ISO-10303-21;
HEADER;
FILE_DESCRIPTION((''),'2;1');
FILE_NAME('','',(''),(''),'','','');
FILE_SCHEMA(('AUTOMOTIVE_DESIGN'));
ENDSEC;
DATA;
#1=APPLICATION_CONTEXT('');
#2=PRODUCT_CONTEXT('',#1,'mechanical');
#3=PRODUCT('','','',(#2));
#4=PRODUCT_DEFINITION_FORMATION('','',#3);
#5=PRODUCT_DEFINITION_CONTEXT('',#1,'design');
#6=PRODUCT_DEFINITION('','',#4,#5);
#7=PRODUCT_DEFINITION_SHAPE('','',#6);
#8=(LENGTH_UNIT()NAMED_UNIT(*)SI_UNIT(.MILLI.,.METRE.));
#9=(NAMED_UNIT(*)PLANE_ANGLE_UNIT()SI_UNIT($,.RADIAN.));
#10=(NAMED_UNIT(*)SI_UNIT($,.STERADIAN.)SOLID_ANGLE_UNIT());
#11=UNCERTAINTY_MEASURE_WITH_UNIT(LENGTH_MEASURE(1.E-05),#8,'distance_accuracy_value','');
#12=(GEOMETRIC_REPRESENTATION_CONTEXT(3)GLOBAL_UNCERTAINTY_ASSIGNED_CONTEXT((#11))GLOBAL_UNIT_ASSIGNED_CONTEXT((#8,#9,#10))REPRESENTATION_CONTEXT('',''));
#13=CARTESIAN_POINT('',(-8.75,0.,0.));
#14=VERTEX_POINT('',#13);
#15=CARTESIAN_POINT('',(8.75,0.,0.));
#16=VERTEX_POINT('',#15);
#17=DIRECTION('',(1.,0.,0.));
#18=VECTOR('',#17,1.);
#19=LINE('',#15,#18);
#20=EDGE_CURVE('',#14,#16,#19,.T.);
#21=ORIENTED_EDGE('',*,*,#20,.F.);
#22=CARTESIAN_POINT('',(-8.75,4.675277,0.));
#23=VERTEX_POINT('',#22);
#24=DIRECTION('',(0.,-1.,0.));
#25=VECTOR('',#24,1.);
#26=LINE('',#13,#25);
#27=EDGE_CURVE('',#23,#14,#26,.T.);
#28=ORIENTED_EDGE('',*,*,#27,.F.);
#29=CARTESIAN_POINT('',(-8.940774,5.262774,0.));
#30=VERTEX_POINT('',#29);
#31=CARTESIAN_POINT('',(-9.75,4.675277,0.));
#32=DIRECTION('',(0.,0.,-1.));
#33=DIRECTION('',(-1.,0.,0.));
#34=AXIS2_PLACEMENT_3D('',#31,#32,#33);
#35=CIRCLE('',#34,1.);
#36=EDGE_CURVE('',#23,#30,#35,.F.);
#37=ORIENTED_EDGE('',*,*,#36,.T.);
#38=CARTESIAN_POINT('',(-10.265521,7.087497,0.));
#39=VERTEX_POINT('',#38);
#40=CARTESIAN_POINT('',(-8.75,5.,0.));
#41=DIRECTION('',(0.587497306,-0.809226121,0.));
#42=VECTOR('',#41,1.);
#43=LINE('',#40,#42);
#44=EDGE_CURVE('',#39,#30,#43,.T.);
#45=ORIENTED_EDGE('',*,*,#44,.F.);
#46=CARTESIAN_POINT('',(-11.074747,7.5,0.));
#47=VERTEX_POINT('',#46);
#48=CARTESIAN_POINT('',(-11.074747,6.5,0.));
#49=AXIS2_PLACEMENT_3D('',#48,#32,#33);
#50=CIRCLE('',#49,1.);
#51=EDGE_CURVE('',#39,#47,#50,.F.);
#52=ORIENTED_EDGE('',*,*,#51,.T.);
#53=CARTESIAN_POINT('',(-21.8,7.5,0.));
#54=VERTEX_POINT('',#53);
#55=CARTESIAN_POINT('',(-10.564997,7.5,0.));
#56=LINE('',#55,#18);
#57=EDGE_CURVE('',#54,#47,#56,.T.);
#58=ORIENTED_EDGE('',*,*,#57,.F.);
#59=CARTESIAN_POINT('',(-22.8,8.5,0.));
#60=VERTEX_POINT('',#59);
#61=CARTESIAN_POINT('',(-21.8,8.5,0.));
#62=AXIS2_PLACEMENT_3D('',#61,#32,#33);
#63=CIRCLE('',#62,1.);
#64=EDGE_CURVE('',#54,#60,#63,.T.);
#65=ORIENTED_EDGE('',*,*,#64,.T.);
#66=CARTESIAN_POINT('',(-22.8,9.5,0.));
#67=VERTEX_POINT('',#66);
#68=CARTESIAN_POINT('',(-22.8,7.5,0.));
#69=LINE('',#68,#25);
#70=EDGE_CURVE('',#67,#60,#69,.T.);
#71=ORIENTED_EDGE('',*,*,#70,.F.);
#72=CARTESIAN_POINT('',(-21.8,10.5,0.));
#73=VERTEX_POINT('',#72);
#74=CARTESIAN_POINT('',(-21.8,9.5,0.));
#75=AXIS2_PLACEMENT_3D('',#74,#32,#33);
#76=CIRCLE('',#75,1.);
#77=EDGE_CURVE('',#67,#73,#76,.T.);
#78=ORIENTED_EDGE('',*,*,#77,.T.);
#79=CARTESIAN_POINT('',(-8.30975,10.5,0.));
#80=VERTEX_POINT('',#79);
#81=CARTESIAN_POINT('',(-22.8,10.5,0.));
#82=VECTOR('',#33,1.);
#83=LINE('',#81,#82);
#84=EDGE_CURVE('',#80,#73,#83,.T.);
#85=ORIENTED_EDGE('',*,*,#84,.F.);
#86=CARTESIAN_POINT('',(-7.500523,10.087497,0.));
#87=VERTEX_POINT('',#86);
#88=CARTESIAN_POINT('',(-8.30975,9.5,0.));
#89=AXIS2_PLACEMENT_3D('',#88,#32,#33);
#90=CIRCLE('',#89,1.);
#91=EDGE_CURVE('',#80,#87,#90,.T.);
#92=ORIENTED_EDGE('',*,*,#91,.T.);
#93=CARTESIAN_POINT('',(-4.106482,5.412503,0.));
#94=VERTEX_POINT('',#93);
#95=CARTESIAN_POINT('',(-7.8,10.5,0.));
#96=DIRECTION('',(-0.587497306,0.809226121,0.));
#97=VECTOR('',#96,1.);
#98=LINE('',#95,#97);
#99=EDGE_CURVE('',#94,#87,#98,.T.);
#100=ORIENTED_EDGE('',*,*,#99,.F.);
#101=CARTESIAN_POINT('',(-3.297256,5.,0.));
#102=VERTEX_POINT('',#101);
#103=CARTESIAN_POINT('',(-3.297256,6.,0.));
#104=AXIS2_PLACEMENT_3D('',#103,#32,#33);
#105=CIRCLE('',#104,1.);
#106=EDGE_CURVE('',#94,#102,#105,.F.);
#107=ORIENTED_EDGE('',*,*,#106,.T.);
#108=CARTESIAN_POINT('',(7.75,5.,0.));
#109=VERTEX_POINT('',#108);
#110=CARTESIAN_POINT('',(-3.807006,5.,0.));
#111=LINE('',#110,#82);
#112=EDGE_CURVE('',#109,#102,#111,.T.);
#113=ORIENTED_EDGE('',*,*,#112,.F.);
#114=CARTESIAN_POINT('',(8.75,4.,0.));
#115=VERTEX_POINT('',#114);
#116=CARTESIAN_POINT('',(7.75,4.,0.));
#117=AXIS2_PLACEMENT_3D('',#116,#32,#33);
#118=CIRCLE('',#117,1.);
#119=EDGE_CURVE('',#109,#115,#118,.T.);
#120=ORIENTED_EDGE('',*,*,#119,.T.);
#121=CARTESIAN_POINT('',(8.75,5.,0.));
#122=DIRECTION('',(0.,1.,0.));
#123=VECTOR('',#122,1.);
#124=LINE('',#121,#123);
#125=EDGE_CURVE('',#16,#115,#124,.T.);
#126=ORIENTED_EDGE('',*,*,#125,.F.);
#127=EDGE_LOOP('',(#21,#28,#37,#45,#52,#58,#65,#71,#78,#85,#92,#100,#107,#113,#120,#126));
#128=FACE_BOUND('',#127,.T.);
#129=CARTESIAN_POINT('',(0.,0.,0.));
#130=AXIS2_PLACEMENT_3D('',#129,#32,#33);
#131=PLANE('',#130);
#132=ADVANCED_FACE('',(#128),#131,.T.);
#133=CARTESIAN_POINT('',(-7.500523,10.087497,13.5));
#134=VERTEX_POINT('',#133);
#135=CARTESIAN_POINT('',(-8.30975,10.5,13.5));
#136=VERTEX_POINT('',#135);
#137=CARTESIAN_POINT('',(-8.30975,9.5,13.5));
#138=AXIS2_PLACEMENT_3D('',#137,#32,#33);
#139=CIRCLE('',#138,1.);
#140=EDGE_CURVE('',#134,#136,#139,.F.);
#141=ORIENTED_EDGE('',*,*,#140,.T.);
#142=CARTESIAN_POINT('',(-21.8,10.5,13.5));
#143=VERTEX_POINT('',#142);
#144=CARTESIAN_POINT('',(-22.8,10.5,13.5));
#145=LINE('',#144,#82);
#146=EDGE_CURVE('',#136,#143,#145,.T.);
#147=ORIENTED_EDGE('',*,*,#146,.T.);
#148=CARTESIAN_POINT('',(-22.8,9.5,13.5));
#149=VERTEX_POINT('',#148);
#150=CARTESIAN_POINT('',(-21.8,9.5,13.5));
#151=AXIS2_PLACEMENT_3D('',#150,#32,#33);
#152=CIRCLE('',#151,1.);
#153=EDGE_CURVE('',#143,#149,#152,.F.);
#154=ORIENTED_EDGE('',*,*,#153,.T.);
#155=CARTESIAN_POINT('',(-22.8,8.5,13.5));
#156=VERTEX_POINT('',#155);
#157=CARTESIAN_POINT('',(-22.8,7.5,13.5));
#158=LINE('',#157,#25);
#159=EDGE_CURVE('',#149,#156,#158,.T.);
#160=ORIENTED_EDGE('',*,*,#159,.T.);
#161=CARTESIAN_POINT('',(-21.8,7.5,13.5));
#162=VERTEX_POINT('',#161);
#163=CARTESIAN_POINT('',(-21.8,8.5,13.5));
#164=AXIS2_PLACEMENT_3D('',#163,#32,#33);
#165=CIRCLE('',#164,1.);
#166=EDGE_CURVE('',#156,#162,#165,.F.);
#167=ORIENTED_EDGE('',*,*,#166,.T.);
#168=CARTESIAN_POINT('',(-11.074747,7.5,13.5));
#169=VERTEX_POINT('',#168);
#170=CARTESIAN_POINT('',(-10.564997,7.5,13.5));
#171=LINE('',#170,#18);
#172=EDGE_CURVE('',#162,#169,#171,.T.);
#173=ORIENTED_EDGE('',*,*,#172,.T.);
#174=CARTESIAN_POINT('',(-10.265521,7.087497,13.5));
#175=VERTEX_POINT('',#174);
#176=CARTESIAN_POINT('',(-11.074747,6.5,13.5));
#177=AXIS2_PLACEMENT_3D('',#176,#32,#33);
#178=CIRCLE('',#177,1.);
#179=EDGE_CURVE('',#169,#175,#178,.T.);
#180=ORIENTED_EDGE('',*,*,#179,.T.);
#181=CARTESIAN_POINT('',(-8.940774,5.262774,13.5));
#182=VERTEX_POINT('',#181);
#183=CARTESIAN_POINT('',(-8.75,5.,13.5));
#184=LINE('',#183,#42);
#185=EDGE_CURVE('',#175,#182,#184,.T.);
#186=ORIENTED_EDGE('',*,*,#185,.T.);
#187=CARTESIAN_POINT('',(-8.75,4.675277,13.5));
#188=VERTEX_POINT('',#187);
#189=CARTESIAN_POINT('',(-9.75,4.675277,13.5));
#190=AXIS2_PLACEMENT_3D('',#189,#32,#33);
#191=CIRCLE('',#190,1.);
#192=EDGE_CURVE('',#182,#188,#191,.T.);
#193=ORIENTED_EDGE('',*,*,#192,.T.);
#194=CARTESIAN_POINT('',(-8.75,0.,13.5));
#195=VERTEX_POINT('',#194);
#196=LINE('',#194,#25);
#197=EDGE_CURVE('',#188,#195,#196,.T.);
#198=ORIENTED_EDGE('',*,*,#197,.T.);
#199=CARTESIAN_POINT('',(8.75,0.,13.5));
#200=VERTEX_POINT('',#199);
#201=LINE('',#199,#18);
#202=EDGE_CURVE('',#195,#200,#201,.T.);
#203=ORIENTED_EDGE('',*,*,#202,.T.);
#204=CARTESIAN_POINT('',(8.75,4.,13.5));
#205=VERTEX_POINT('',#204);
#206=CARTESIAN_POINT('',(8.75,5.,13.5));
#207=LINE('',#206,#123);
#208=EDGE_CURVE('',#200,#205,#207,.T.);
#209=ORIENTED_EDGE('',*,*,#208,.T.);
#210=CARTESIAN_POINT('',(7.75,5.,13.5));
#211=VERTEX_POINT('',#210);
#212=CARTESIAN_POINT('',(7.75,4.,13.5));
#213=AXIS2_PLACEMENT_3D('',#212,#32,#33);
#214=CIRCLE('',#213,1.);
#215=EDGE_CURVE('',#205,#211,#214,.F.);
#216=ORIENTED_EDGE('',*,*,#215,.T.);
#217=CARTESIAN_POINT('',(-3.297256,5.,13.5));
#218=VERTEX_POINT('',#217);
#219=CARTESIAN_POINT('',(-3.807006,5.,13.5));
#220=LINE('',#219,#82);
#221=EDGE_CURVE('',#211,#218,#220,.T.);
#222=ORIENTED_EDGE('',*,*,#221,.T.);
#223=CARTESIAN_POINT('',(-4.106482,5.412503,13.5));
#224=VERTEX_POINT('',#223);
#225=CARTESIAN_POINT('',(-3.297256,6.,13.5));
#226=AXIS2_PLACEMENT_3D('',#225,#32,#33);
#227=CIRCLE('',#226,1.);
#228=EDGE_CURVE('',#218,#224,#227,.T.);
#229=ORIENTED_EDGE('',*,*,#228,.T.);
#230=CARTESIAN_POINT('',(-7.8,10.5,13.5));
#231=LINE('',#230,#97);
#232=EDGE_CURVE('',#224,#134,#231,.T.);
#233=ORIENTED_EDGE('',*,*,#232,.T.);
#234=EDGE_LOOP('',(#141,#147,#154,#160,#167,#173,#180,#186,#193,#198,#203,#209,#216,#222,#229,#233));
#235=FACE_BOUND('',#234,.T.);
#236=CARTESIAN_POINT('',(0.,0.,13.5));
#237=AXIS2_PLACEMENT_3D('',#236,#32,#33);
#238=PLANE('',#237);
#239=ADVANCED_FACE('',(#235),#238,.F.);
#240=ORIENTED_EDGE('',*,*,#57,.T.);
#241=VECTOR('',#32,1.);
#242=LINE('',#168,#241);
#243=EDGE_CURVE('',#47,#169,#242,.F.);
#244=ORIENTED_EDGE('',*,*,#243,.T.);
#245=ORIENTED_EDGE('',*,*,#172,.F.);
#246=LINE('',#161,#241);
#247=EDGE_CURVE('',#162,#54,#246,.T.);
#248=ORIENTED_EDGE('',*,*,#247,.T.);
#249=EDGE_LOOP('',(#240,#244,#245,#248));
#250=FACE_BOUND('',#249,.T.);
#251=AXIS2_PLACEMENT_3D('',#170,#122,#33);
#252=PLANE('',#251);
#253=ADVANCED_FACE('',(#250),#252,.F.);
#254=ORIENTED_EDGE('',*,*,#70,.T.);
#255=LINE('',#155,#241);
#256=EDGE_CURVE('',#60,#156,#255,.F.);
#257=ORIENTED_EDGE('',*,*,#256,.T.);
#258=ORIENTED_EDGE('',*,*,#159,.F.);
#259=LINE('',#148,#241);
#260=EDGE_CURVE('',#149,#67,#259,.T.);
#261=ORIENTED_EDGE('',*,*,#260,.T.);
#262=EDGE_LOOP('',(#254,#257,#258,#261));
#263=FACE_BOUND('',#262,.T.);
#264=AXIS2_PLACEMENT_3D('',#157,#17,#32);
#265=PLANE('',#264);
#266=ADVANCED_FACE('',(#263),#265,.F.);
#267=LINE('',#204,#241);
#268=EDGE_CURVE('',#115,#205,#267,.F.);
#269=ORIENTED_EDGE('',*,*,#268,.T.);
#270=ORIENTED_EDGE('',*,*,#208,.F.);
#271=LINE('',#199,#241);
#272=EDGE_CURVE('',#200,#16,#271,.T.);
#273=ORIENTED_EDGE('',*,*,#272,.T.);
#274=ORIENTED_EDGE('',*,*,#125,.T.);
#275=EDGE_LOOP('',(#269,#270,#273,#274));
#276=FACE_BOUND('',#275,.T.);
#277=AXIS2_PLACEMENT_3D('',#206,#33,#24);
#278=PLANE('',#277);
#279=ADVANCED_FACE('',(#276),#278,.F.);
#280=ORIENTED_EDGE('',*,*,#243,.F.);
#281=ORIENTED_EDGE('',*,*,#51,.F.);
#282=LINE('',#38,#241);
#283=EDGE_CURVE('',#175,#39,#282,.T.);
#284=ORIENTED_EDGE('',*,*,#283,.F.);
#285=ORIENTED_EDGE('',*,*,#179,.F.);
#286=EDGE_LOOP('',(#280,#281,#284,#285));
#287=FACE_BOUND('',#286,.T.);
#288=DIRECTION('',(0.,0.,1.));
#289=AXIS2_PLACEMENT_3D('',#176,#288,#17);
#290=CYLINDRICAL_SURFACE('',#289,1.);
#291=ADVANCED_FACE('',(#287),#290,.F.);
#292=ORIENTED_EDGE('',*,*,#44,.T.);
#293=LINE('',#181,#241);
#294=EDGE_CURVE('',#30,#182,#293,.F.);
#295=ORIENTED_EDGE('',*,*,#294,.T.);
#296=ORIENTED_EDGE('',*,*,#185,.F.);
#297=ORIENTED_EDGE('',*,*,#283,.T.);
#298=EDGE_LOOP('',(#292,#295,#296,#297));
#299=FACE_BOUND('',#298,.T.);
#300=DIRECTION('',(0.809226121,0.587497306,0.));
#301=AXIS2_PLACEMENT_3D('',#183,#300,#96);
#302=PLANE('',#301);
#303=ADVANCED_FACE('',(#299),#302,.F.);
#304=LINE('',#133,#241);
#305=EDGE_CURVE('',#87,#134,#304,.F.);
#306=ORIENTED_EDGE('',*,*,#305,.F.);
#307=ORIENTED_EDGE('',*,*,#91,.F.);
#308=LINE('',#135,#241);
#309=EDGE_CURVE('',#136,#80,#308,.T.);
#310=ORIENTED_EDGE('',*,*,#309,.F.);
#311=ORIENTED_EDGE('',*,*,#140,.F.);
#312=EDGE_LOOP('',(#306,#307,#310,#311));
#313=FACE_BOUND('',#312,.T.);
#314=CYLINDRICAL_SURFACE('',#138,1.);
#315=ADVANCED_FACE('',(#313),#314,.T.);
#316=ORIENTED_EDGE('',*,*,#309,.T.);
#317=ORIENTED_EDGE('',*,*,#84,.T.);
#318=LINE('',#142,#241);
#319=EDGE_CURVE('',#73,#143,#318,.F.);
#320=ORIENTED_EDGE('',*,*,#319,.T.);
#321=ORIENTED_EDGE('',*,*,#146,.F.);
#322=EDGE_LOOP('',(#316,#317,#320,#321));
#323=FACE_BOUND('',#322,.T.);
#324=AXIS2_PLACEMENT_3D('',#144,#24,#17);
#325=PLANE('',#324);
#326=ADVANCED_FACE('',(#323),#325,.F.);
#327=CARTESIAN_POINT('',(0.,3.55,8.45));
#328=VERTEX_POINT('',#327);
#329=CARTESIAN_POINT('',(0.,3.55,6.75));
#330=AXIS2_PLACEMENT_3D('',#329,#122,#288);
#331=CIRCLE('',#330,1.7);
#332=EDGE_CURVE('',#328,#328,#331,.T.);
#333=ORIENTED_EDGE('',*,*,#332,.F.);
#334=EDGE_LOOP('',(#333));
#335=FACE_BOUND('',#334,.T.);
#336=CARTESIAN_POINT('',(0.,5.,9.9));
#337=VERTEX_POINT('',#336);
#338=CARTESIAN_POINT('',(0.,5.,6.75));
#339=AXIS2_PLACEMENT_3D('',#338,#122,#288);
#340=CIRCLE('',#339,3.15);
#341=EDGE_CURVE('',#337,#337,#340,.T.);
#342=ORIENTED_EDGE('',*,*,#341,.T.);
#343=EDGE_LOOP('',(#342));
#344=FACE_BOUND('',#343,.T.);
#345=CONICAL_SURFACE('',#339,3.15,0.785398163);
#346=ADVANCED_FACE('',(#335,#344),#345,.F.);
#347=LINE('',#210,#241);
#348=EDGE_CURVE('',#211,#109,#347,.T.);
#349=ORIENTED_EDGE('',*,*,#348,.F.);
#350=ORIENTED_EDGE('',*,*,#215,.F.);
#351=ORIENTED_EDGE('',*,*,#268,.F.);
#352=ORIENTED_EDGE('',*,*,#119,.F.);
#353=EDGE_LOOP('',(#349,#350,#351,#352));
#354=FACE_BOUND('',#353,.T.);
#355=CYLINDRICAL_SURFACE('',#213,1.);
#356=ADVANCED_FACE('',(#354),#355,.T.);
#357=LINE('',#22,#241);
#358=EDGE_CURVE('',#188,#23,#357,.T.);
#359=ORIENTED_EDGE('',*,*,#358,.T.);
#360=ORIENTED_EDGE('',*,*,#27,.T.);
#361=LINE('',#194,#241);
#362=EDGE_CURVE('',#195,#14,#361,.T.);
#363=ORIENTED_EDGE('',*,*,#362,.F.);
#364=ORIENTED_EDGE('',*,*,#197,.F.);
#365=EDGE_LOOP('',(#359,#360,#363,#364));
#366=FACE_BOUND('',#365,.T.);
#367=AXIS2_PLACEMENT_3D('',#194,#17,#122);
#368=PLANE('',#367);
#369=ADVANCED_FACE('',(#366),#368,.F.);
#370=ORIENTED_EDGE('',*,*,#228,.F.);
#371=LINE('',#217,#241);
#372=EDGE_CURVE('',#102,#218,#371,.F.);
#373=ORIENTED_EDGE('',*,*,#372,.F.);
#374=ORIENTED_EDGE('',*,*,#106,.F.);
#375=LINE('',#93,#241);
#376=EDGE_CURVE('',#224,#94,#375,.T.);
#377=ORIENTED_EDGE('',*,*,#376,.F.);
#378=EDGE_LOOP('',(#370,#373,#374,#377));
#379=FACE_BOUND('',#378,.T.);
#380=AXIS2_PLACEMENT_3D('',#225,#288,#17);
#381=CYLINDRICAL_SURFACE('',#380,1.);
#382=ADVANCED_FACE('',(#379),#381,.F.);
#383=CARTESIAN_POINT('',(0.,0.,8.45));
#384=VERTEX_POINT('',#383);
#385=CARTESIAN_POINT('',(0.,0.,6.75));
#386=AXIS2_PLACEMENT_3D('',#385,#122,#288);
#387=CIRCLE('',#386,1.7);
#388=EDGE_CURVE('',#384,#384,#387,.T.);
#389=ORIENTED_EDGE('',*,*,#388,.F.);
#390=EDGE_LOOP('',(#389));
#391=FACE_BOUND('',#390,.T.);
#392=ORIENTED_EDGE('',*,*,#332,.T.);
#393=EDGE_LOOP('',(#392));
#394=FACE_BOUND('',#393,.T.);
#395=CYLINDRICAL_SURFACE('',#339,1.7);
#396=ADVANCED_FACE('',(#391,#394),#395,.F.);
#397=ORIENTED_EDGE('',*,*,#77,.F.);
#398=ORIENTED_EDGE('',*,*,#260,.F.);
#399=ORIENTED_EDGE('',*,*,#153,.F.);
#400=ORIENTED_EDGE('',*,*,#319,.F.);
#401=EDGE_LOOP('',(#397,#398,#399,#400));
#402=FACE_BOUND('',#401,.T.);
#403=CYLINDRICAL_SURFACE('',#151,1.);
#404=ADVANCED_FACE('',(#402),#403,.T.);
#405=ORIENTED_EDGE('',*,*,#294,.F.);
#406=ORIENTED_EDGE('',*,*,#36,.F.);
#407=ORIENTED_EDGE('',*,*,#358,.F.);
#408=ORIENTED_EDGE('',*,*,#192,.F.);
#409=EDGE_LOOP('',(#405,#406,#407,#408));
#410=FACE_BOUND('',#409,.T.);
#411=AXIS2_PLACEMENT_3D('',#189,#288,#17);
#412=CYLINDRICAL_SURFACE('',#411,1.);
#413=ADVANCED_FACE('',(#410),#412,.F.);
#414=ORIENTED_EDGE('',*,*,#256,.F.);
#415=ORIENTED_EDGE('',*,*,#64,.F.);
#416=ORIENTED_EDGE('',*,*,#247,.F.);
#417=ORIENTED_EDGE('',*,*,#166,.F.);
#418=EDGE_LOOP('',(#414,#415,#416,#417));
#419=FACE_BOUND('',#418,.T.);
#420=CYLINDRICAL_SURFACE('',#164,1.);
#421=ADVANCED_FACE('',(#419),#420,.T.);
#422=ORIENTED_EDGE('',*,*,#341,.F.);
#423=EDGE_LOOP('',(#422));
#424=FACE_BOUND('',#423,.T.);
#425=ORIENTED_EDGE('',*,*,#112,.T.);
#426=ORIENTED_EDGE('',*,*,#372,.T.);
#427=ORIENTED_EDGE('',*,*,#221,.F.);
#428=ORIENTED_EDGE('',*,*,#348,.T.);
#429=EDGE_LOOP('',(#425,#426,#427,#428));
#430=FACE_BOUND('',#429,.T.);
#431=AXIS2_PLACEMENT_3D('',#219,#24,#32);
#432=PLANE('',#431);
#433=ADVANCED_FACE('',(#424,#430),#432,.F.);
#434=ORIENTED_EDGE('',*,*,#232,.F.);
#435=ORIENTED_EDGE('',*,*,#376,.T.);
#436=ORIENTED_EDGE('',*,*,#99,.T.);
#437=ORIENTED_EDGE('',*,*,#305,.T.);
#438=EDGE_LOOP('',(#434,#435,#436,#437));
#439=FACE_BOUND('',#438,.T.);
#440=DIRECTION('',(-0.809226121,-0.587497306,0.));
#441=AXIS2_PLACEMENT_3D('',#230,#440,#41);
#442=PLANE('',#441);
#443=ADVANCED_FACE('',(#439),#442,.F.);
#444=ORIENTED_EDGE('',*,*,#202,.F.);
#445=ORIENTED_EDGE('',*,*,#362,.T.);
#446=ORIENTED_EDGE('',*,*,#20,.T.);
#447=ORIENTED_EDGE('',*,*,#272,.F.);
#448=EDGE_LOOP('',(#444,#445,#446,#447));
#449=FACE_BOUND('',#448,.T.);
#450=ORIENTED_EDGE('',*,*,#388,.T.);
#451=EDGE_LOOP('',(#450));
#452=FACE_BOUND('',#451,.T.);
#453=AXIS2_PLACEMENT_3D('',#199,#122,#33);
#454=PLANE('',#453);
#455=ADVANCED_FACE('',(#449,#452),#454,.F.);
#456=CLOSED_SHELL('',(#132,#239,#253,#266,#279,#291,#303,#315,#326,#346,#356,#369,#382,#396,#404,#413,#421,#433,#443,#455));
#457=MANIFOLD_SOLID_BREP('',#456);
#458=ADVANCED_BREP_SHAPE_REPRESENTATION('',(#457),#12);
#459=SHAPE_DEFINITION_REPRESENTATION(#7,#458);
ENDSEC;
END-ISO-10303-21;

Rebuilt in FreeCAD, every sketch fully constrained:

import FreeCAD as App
import Part
import Sketcher

V = App.Vector


def edges_at(feature, points):
    """Names of the edges that pass closest to the given points."""
    edges = feature.Shape.Edges
    near = lambda p: min(range(len(edges)), key=lambda i: edges[i].distToShape(Part.Vertex(*p))[0])
    return sorted({f"Edge{near(p) + 1}" for p in points})

doc = App.newDocument("Part")
body = doc.addObject("PartDesign::Body", "Body")

# Sketch on XY plane
sketch1 = body.newObject("Sketcher::SketchObject", "Sketch")
sketch1.AttachmentSupport = (doc.getObject("XY_Plane"), [""])
sketch1.MapMode = "FlatFace"
sketch1.addGeometry(Part.LineSegment(V(-8.8, 0, 0), V(8.8, 0, 0)), False)
sketch1.addGeometry(Part.LineSegment(V(8.8, 0, 0), V(8.8, 5, 0)), False)
sketch1.addGeometry(Part.LineSegment(V(8.8, 5, 0), V(-3.8, 5, 0)), False)
sketch1.addGeometry(Part.LineSegment(V(-3.8, 5, 0), V(-7.8, 10.5, 0)), False)
sketch1.addGeometry(Part.LineSegment(V(-7.8, 10.5, 0), V(-22.8, 10.5, 0)), False)
sketch1.addGeometry(Part.LineSegment(V(-22.8, 10.5, 0), V(-22.8, 7.5, 0)), False)
sketch1.addGeometry(Part.LineSegment(V(-22.8, 7.5, 0), V(-10.6, 7.5, 0)), False)
sketch1.addGeometry(Part.LineSegment(V(-10.6, 7.5, 0), V(-8.8, 5, 0)), False)
sketch1.addGeometry(Part.LineSegment(V(-8.8, 5, 0), V(-8.8, 0, 0)), False)
sketch1.addConstraint(Sketcher.Constraint("Coincident", 0, 2, 1, 1))
sketch1.addConstraint(Sketcher.Constraint("Coincident", 1, 2, 2, 1))
sketch1.addConstraint(Sketcher.Constraint("Coincident", 2, 2, 3, 1))
sketch1.addConstraint(Sketcher.Constraint("Coincident", 3, 2, 4, 1))
sketch1.addConstraint(Sketcher.Constraint("Coincident", 4, 2, 5, 1))
sketch1.addConstraint(Sketcher.Constraint("Coincident", 5, 2, 6, 1))
sketch1.addConstraint(Sketcher.Constraint("Coincident", 6, 2, 7, 1))
sketch1.addConstraint(Sketcher.Constraint("Coincident", 7, 2, 8, 1))
sketch1.addConstraint(Sketcher.Constraint("Coincident", 8, 2, 0, 1))
sketch1.addConstraint(Sketcher.Constraint("Horizontal", 0))
sketch1.addConstraint(Sketcher.Constraint("Vertical", 1))
sketch1.addConstraint(Sketcher.Constraint("Horizontal", 2))
sketch1.addConstraint(Sketcher.Constraint("Horizontal", 4))
sketch1.addConstraint(Sketcher.Constraint("Vertical", 5))
sketch1.addConstraint(Sketcher.Constraint("Horizontal", 6))
sketch1.addConstraint(Sketcher.Constraint("Vertical", 8))
sketch1.addConstraint(Sketcher.Constraint("Symmetric", 0, 2, 8, 2, -1, 1))
sketch1.addConstraint(Sketcher.Constraint("Parallel", 3, 7))
sketch1.addConstraint(Sketcher.Constraint("Horizontal", 2, 2, 7, 2))
sketch1.addConstraint(Sketcher.Constraint("DistanceX", 4, 2, 4, 1, 15.0))
sketch1.addConstraint(Sketcher.Constraint("DistanceY", 1, 1, 1, 2, 5.0))
sketch1.addConstraint(Sketcher.Constraint("DistanceY", 5, 2, 5, 1, 3.0))
sketch1.addConstraint(Sketcher.Constraint("DistanceX", 0, 1, 0, 2, 17.5))
sketch1.addConstraint(Sketcher.Constraint("DistanceX", 3, 2, -1, 1, 7.8))
sketch1.addConstraint(Sketcher.Constraint("DistanceY", -1, 1, 3, 2, 10.5))
sketch1.addConstraint(Sketcher.Constraint("Distance", 7, 3.089371))
pad1 = body.newObject("PartDesign::Pad", "Pad")
pad1.Profile = sketch1
pad1.Length = 13.5
doc.recompute()

fillet = body.newObject("PartDesign::Fillet", "Fillet")
fillet.Base = (pad1, edges_at(pad1, [
    (-8.75, 5, 6.75),
    (-10.565, 7.5, 6.75),
    (-22.8, 7.5, 6.75),
    (-22.8, 10.5, 6.75),
    (-7.8, 10.5, 6.75),
    (-3.807, 5, 6.75),
    (8.75, 5, 6.75),
]))
fillet.Radius = 1

# Sketch on XZ plane
sketch2 = body.newObject("Sketcher::SketchObject", "Sketch001")
sketch2.AttachmentSupport = (doc.getObject("XZ_Plane"), [""])
sketch2.MapMode = "FlatFace"
sketch2.AttachmentOffset = App.Placement(V(0, 0, -5), App.Rotation())
sketch2.addGeometry(Part.Circle(V(0, 6.8, 0), V(0, 0, 1), 1.7), False)
sketch2.addConstraint(Sketcher.Constraint("PointOnObject", 0, 3, -2))
sketch2.addConstraint(Sketcher.Constraint("Diameter", 0, 3.4))
sketch2.addConstraint(Sketcher.Constraint("DistanceY", -1, 1, 0, 3, 6.75))
doc.recompute()
hole = body.newObject("PartDesign::Hole", "Hole")
hole.Profile = sketch2
hole.ThreadType = "None"
hole.Diameter = 3.4
hole.DepthType = "ThroughAll"
hole.HoleCutType = "Countersink"
hole.HoleCutDiameter = 6.3
hole.HoleCutCountersinkAngle = 90
hole.Reversed = True

doc.recompute()
